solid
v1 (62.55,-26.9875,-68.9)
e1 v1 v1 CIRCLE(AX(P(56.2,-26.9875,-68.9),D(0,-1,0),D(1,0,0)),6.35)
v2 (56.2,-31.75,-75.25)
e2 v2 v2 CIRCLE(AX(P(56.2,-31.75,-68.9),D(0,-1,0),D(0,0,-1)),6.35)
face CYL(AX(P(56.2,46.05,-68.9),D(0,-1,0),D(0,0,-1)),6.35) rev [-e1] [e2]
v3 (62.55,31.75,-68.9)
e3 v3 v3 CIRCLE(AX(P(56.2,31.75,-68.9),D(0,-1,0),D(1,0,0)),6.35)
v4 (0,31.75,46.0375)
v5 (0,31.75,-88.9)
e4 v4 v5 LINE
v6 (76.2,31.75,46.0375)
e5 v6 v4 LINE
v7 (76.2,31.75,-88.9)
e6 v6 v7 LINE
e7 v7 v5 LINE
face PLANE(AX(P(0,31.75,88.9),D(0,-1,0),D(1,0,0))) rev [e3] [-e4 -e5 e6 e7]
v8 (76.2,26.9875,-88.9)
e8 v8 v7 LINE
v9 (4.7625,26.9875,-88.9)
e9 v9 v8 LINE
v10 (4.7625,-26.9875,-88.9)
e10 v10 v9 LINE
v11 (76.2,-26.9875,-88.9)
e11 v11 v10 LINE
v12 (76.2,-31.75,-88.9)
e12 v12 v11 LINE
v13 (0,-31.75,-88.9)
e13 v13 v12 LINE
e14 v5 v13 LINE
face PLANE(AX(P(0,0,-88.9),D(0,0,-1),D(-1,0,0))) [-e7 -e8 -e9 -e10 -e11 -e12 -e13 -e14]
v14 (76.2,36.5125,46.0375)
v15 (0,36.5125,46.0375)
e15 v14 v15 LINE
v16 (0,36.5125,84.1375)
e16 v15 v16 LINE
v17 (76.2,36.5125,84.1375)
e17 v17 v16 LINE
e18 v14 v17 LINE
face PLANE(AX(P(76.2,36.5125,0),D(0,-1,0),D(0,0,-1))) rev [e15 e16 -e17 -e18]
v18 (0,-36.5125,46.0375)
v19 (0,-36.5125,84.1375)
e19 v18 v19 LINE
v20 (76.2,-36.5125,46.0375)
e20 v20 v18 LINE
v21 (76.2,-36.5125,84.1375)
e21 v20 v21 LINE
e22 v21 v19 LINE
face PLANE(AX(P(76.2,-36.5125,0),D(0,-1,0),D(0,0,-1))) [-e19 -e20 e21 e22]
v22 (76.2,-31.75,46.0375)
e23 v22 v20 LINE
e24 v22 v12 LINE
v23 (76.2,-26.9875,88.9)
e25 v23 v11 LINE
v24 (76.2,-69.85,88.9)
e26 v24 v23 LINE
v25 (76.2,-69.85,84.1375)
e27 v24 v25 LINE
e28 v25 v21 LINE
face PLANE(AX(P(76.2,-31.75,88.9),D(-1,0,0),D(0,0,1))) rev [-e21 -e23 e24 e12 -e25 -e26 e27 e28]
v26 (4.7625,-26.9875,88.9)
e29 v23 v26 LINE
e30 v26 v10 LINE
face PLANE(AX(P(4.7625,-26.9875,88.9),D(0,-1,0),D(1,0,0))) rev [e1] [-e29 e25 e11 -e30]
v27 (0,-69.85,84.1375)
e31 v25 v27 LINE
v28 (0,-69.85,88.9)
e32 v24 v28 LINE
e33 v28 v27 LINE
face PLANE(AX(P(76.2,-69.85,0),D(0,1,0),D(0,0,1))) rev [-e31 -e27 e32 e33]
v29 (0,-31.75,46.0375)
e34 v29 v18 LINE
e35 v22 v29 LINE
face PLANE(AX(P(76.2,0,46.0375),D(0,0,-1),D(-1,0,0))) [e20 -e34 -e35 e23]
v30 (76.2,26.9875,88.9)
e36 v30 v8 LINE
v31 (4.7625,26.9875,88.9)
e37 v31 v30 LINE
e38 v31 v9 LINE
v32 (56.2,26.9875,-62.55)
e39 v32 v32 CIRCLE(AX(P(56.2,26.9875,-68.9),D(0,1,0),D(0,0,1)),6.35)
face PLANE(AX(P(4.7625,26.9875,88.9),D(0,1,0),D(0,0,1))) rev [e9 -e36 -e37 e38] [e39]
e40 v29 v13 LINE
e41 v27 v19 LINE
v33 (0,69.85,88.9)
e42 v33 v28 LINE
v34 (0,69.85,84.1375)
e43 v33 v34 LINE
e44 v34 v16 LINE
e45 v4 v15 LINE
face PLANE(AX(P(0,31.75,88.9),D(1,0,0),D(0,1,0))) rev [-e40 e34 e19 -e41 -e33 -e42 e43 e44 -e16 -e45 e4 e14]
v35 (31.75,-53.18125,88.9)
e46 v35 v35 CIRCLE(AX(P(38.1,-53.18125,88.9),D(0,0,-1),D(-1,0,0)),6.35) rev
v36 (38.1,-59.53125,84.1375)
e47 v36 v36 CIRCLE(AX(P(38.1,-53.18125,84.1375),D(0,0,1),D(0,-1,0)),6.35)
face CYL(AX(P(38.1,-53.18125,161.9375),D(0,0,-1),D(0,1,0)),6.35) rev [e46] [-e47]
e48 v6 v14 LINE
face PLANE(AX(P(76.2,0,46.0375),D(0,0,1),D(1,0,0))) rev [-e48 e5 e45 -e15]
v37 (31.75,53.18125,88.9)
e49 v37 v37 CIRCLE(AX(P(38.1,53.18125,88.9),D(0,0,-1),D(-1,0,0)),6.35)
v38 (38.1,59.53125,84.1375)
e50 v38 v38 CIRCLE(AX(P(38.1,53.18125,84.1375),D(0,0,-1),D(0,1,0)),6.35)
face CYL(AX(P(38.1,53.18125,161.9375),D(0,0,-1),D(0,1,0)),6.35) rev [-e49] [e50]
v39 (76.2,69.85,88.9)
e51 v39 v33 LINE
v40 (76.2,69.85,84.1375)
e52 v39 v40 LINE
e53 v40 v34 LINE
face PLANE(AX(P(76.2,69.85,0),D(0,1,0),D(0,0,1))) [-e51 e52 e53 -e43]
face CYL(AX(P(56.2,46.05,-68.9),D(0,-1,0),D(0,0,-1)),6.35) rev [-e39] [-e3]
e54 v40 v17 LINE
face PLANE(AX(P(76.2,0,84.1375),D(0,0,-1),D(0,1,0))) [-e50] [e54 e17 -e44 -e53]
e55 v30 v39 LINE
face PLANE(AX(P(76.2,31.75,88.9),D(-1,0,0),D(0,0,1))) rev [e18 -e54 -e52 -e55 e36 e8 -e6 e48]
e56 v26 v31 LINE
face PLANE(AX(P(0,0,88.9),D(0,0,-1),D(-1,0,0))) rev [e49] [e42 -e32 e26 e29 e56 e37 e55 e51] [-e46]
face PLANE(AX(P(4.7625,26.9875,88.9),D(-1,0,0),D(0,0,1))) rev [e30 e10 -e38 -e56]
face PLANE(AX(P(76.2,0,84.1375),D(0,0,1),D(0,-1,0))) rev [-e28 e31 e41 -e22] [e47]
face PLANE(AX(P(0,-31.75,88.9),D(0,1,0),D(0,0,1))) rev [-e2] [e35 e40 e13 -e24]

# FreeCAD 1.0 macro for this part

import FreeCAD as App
import Part
import Sketcher

V = App.Vector
Q = App.Units.Quantity

doc = App.newDocument("Part")
body = doc.addObject("PartDesign::Body", "Body")

# Sketch on XY plane
sketch1 = body.newObject("Sketcher::SketchObject", "Sketch")
sketch1.AttachmentSupport = (doc.getObject("XY_Plane"), [""])
sketch1.MapMode = "FlatFace"
sketch1.addGeometry(Part.LineSegment(V(0, 31.75, 0), V(0, -31.75, 0)), False)
sketch1.addGeometry(Part.LineSegment(V(0, -31.75, 0), V(76.2, -31.75, 0)), False)
sketch1.addGeometry(Part.LineSegment(V(76.2, -31.75, 0), V(76.2, -26.9875, 0)), False)
sketch1.addGeometry(Part.LineSegment(V(76.2, -26.9875, 0), V(4.7625, -26.9875, 0)), False)
sketch1.addGeometry(Part.LineSegment(V(4.7625, -26.9875, 0), V(4.7625, 26.9875, 0)), False)
sketch1.addGeometry(Part.LineSegment(V(4.7625, 26.9875, 0), V(76.2, 26.9875, 0)), False)
sketch1.addGeometry(Part.LineSegment(V(76.2, 26.9875, 0), V(76.2, 31.75, 0)), False)
sketch1.addGeometry(Part.LineSegment(V(76.2, 31.75, 0), V(0, 31.75, 0)), False)
sketch1.addConstraint(Sketcher.Constraint("Coincident", 0, 2, 1, 1))
sketch1.addConstraint(Sketcher.Constraint("Coincident", 1, 2, 2, 1))
sketch1.addConstraint(Sketcher.Constraint("Coincident", 2, 2, 3, 1))
sketch1.addConstraint(Sketcher.Constraint("Coincident", 3, 2, 4, 1))
sketch1.addConstraint(Sketcher.Constraint("Coincident", 4, 2, 5, 1))
sketch1.addConstraint(Sketcher.Constraint("Coincident", 5, 2, 6, 1))
sketch1.addConstraint(Sketcher.Constraint("Coincident", 6, 2, 7, 1))
sketch1.addConstraint(Sketcher.Constraint("Coincident", 7, 2, 0, 1))
sketch1.addConstraint(Sketcher.Constraint("Vertical", 0))
sketch1.addConstraint(Sketcher.Constraint("Horizontal", 1))
sketch1.addConstraint(Sketcher.Constraint("Vertical", 2))
sketch1.addConstraint(Sketcher.Constraint("Horizontal", 3))
sketch1.addConstraint(Sketcher.Constraint("Vertical", 4))
sketch1.addConstraint(Sketcher.Constraint("Horizontal", 5))
sketch1.addConstraint(Sketcher.Constraint("Vertical", 6))
sketch1.addConstraint(Sketcher.Constraint("Horizontal", 7))
sketch1.addConstraint(Sketcher.Constraint("Symmetric", 0, 2, 7, 2, -1, 1))
sketch1.addConstraint(Sketcher.Constraint("Symmetric", 2, 2, 5, 2, -1))
sketch1.addConstraint(Sketcher.Constraint("DistanceX", 1, 1, 1, 2, Q("3 in")))
sketch1.addConstraint(Sketcher.Constraint("DistanceY", 0, 2, 0, 1, Q("2.5 in")))
sketch1.addConstraint(Sketcher.Constraint("DistanceX", 3, 2, 3, 1, Q("2.8125 in")))
sketch1.addConstraint(Sketcher.Constraint("DistanceY", 2, 1, 2, 2, Q("0.1875 in")))
pad1 = body.newObject("PartDesign::Pad", "Pad")
pad1.Profile = sketch1
pad1.Length = Q("7 in")
pad1.Midplane = True

# Sketch on YZ plane
sketch2 = body.newObject("Sketcher::SketchObject", "Sketch001")
sketch2.AttachmentSupport = (doc.getObject("YZ_Plane"), [""])
sketch2.MapMode = "FlatFace"
sketch2.addGeometry(Part.LineSegment(V(31.75, 46.0375, 0), V(36.5125, 46.0375, 0)), False)
sketch2.addGeometry(Part.LineSegment(V(36.5125, 46.0375, 0), V(36.5125, 84.1375, 0)), False)
sketch2.addGeometry(Part.LineSegment(V(36.5125, 84.1375, 0), V(69.85, 84.1375, 0)), False)
sketch2.addGeometry(Part.LineSegment(V(69.85, 84.1375, 0), V(69.85, 88.9, 0)), False)
sketch2.addGeometry(Part.LineSegment(V(69.85, 88.9, 0), V(31.75, 88.9, 0)), False)
sketch2.addGeometry(Part.LineSegment(V(31.75, 88.9, 0), V(31.75, 46.0375, 0)), False)
sketch2.addConstraint(Sketcher.Constraint("Coincident", 0, 2, 1, 1))
sketch2.addConstraint(Sketcher.Constraint("Coincident", 1, 2, 2, 1))
sketch2.addConstraint(Sketcher.Constraint("Coincident", 2, 2, 3, 1))
sketch2.addConstraint(Sketcher.Constraint("Coincident", 3, 2, 4, 1))
sketch2.addConstraint(Sketcher.Constraint("Coincident", 4, 2, 5, 1))
sketch2.addConstraint(Sketcher.Constraint("Coincident", 5, 2, 0, 1))
sketch2.addConstraint(Sketcher.Constraint("Horizontal", 0))
sketch2.addConstraint(Sketcher.Constraint("Vertical", 1))
sketch2.addConstraint(Sketcher.Constraint("Horizontal", 2))
sketch2.addConstraint(Sketcher.Constraint("Vertical", 3))
sketch2.addConstraint(Sketcher.Constraint("Horizontal", 4))
sketch2.addConstraint(Sketcher.Constraint("Vertical", 5))
sketch2.addConstraint(Sketcher.Constraint("Equal", 4, 1))
sketch2.addConstraint(Sketcher.Constraint("Equal", 0, 3))
sketch2.addConstraint(Sketcher.Constraint("DistanceX", 4, 2, 4, 1, Q("1.5 in")))
sketch2.addConstraint(Sketcher.Constraint("DistanceY", -1, 1, 3, 2, Q("3.5 in")))
sketch2.addConstraint(Sketcher.Constraint("DistanceX", 0, 1, 0, 2, Q("0.1875 in")))
sketch2.addConstraint(Sketcher.Constraint("DistanceX", -1, 1, 2, 2, Q("2.75 in")))
pad2 = body.newObject("PartDesign::Pad", "Pad001")
pad2.Profile = sketch2
pad2.Length = Q("3 in")

# Sketch on XY plane
sketch3 = body.newObject("Sketcher::SketchObject", "Sketch002")
sketch3.AttachmentSupport = (doc.getObject("XY_Plane"), [""])
sketch3.MapMode = "FlatFace"
sketch3.AttachmentOffset = App.Placement(V(0, 0, 3.3125 * 25.4), App.Rotation())
sketch3.addGeometry(Part.Circle(V(38.1, 53.18125, 0), V(0, 0, 1), 6.35), False)
sketch3.addConstraint(Sketcher.Constraint("Diameter", 0, Q("0.5 in")))
sketch3.addConstraint(Sketcher.Constraint("DistanceX", -1, 1, 0, 3, Q("1.5 in")))
sketch3.addConstraint(Sketcher.Constraint("DistanceY", -1, 1, 0, 3, Q("2.09375 in")))
pocket1 = body.newObject("PartDesign::Pocket", "Pocket")
pocket1.Profile = sketch3
pocket1.Length = 77.8
pocket1.Reversed = True
doc.recompute()

mirrored = body.newObject("PartDesign::Mirrored", "Mirrored")
mirrored.Originals = [pad2, pocket1]
mirrored.MirrorPlane = (doc.getObject("XZ_Plane"), [""])
body.Tip = mirrored

# Sketch on XZ plane
sketch4 = body.newObject("Sketcher::SketchObject", "Sketch003")
sketch4.AttachmentSupport = (doc.getObject("XZ_Plane"), [""])
sketch4.MapMode = "FlatFace"
sketch4.AttachmentOffset = App.Placement(V(0, 0, 1.25 * 25.4), App.Rotation())
sketch4.addGeometry(Part.Circle(V(56.2, -68.9, 0), V(0, 0, 1), 6.35), False)
sketch4.addConstraint(Sketcher.Constraint("Diameter", 0, Q("0.5 in")))
sketch4.addConstraint(Sketcher.Constraint("DistanceX", -1, 1, 0, 3, 56.2))
sketch4.addConstraint(Sketcher.Constraint("DistanceY", 0, 3, -1, 1, 68.9))
pocket2 = body.newObject("PartDesign::Pocket", "Pocket001")
pocket2.Profile = sketch4
pocket2.Length = 77.8

doc.recompute()
